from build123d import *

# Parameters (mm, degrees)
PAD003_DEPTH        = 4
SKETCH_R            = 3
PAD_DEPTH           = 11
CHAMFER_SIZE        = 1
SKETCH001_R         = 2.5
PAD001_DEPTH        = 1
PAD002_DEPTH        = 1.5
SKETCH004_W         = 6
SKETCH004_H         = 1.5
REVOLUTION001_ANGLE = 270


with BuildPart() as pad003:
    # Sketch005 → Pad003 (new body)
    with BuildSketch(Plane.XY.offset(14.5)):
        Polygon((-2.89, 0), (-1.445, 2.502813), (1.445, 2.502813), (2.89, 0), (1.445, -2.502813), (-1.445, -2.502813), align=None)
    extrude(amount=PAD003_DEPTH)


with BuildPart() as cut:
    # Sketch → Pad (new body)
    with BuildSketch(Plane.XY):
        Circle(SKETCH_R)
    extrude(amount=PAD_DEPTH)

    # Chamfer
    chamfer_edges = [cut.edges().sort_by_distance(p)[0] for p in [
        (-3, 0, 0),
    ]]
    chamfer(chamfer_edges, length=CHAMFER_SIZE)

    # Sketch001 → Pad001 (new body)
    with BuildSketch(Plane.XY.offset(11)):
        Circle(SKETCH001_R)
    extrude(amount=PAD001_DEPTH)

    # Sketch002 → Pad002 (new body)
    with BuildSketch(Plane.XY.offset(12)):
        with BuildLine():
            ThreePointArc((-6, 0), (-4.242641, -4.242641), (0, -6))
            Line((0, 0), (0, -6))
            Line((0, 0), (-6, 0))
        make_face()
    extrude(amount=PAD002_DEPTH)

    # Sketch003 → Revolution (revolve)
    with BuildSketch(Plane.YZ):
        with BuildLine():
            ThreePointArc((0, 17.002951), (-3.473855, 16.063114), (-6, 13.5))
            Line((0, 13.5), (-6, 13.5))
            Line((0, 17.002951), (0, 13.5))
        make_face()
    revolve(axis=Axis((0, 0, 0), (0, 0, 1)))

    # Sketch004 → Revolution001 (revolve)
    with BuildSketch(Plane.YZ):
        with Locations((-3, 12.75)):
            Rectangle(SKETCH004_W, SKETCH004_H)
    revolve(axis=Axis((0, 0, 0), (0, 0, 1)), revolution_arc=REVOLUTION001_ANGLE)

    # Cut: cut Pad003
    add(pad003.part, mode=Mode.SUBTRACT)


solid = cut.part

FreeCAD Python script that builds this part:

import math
import FreeCAD as App
import Part
import Sketcher
from FreeCAD import Vector
Q = App.Units.Quantity


def edges_at(feature, points):
    """Names of the edges that pass closest to the given points."""
    edges = feature.Shape.Edges
    near = lambda p: min(range(len(edges)), key=lambda i: edges[i].distToShape(Part.Vertex(*p))[0])
    return sorted({f"Edge{near(p) + 1}" for p in points})

doc = App.newDocument("Part")
body = doc.addObject("PartDesign::Body", "Body")

sketch1 = body.newObject("Sketcher::SketchObject", "Sketch")
sketch1.AttachmentSupport = (doc.getObject("XY_Plane"), [""])
sketch1.MapMode = "FlatFace"
sketch1.AttachmentOffset = App.Placement(Vector(0, 0, 14.5), App.Rotation())
sketch1.addGeometry([
    Part.LineSegment(Vector(-1.4, 2.5, 0), Vector(-2.9, 0, 0)),
    Part.LineSegment(Vector(-2.9, 0, 0), Vector(-1.4, -2.5, 0)),
    Part.LineSegment(Vector(-1.4, -2.5, 0), Vector(1.4, -2.5, 0)),
    Part.LineSegment(Vector(1.4, -2.5, 0), Vector(2.9, 0, 0)),
    Part.LineSegment(Vector(2.9, 0, 0), Vector(1.4, 2.5, 0)),
    Part.LineSegment(Vector(1.4, 2.5, 0), Vector(-1.4, 2.5, 0)),
], False)
sketch1.addConstraint([
    Sketcher.Constraint("Coincident", 0, 2, 1, 1),
    Sketcher.Constraint("Coincident", 1, 2, 2, 1),
    Sketcher.Constraint("Coincident", 2, 2, 3, 1),
    Sketcher.Constraint("Coincident", 3, 2, 4, 1),
    Sketcher.Constraint("Coincident", 4, 2, 5, 1),
    Sketcher.Constraint("Coincident", 5, 2, 0, 1),
    Sketcher.Constraint("Horizontal", 2),
    Sketcher.Constraint("Horizontal", 5),
    Sketcher.Constraint("Symmetric", 0, 2, 3, 2, -1, 1),
    Sketcher.Constraint("Symmetric", 1, 2, 4, 2, -1, 1),
    Sketcher.Constraint("PointOnObject", 0, 2, -1),
    Sketcher.Constraint("Parallel", 0, 3),
    Sketcher.Constraint("Vertical", 2, 2, 4, 2),
    Sketcher.Constraint("Angle", 0, Q("-120.000004 deg")),
    Sketcher.Constraint("DistanceX", 2, 1, 2, 2, Q("2.89 mm")),
    Sketcher.Constraint("Distance", 0, Q("2.89 mm")),
])
pad1 = body.newObject("PartDesign::Pad", "Pad")
pad1.Profile = sketch1
pad1.Length = 4
body2 = doc.addObject("PartDesign::Body", "Body001")

sketch2 = body2.newObject("Sketcher::SketchObject", "Sketch001")
sketch2.AttachmentSupport = (doc.getObject("XY_Plane001"), [""])
sketch2.MapMode = "FlatFace"
sketch2.addGeometry(Part.Circle(Vector(0, 0, 0), Vector(0, 0, 1), 3), False)
sketch2.addConstraint([
    Sketcher.Constraint("Coincident", 0, 3, -1, 1),
    Sketcher.Constraint("Diameter", 0, Q("6 mm")),
])
pad2 = body2.newObject("PartDesign::Pad", "Pad001")
pad2.Profile = sketch2
pad2.Length = 11
doc.recompute()

chamfer = body2.newObject("PartDesign::Chamfer", "Chamfer")
chamfer.Base = (pad2, edges_at(pad2, [(-3, 0, 0)]))
chamfer.Size = 1

sketch3 = body2.newObject("Sketcher::SketchObject", "Sketch002")
sketch3.AttachmentSupport = (doc.getObject("XY_Plane001"), [""])
sketch3.MapMode = "FlatFace"
sketch3.AttachmentOffset = App.Placement(Vector(0, 0, 11), App.Rotation())
sketch3.addGeometry(Part.Circle(Vector(0, 0, 0), Vector(0, 0, 1), 2.5), False)
sketch3.addConstraint([
    Sketcher.Constraint("Coincident", 0, 3, -1, 1),
    Sketcher.Constraint("Diameter", 0, Q("5 mm")),
])
pad3 = body2.newObject("PartDesign::Pad", "Pad002")
pad3.Profile = sketch3
pad3.Length = 1

sketch4 = body2.newObject("Sketcher::SketchObject", "Sketch003")
sketch4.AttachmentSupport = (doc.getObject("XY_Plane001"), [""])
sketch4.MapMode = "FlatFace"
sketch4.AttachmentOffset = App.Placement(Vector(0, 0, 12), App.Rotation())
sketch4.addGeometry([
    Part.ArcOfCircle(Part.Circle(Vector(0, 0, 0), Vector(0, 0, 1), 6), math.radians(180), math.radians(270)),
    Part.LineSegment(Vector(0, -6, 0), Vector(0, 0, 0)),
    Part.LineSegment(Vector(0, 0, 0), Vector(-6, 0, 0)),
], False)
sketch4.addConstraint([
    Sketcher.Constraint("Coincident", 0, 2, 1, 1),
    Sketcher.Constraint("Coincident", 1, 2, 2, 1),
    Sketcher.Constraint("Coincident", 2, 2, 0, 1),
    Sketcher.Constraint("Vertical", 1),
    Sketcher.Constraint("Horizontal", 2),
    Sketcher.Constraint("Coincident", 0, 3, -1, 1),
    Sketcher.Constraint("Coincident", 1, 2, -1, 1),
    Sketcher.Constraint("Radius", 0, Q("5.999999 mm")),
])
pad4 = body2.newObject("PartDesign::Pad", "Pad003")
pad4.Profile = sketch4
pad4.Length = 1.5

sketch5 = body2.newObject("Sketcher::SketchObject", "Sketch004")
sketch5.AttachmentSupport = (doc.getObject("YZ_Plane001"), [""])
sketch5.MapMode = "FlatFace"
sketch5.addGeometry([
    Part.ArcOfCircle(Part.Circle(Vector(0, 10.1, 0), Vector(0, 0, 1), 6.9), math.radians(90), math.radians(151)),
    Part.LineSegment(Vector(-6, 13.5, 0), Vector(0, 13.5, 0)),
    Part.LineSegment(Vector(0, 13.5, 0), Vector(0, 17, 0)),
], False)
sketch5.addConstraint([
    Sketcher.Constraint("Coincident", 0, 2, 1, 1),
    Sketcher.Constraint("Coincident", 1, 2, 2, 1),
    Sketcher.Constraint("Coincident", 2, 2, 0, 1),
    Sketcher.Constraint("Horizontal", 1),
    Sketcher.Constraint("Vertical", 2),
    Sketcher.Constraint("PointOnObject", 1, 2, -2),
    Sketcher.Constraint("DistanceX", 1, 1, 1, 2, Q("6 mm")),
    Sketcher.Constraint("DistanceY", -1, 1, 0, 2, Q("13.5 mm")),
    Sketcher.Constraint("Radius", 0, Q("6.889996 mm")),
    Sketcher.Constraint("DistanceY", 2, 1, 2, 2, Q("3.502951 mm")),
])
revolution = body2.newObject("PartDesign::Revolution", "Revolution")
revolution.Profile = sketch5
revolution.ReferenceAxis = (sketch5, ["V_Axis"])
revolution.Angle = 360

sketch6 = body2.newObject("Sketcher::SketchObject", "Sketch005")
sketch6.AttachmentSupport = (doc.getObject("YZ_Plane001"), [""])
sketch6.MapMode = "FlatFace"
sketch6.addGeometry([
    Part.LineSegment(Vector(-6, 13.5, 0), Vector(-6, 12, 0)),
    Part.LineSegment(Vector(-6, 12, 0), Vector(0, 12, 0)),
    Part.LineSegment(Vector(0, 12, 0), Vector(0, 13.5, 0)),
    Part.LineSegment(Vector(0, 13.5, 0), Vector(-6, 13.5, 0)),
], False)
sketch6.addConstraint([
    Sketcher.Constraint("Coincident", 0, 2, 1, 1),
    Sketcher.Constraint("Coincident", 1, 2, 2, 1),
    Sketcher.Constraint("Coincident", 2, 2, 3, 1),
    Sketcher.Constraint("Coincident", 3, 2, 0, 1),
    Sketcher.Constraint("Vertical", 0),
    Sketcher.Constraint("Horizontal", 1),
    Sketcher.Constraint("Vertical", 2),
    Sketcher.Constraint("Horizontal", 3),
    Sketcher.Constraint("PointOnObject", 1, 2, -2),
    Sketcher.Constraint("DistanceX", 1, 1, 1, 2, Q("6 mm")),
    Sketcher.Constraint("DistanceY", 0, 2, 0, 1, Q("1.5 mm")),
    Sketcher.Constraint("DistanceY", -1, 1, 0, 2, Q("12 mm")),
])
revolution2 = body2.newObject("PartDesign::Revolution", "Revolution001")
revolution2.Profile = sketch6
revolution2.ReferenceAxis = (sketch6, ["V_Axis"])
revolution2.Angle = 270
doc.recompute()

boolean = body2.newObject("PartDesign::Boolean", "Boolean")
boolean.Type = "Cut"
boolean.addObjects([body])

doc.recompute()
